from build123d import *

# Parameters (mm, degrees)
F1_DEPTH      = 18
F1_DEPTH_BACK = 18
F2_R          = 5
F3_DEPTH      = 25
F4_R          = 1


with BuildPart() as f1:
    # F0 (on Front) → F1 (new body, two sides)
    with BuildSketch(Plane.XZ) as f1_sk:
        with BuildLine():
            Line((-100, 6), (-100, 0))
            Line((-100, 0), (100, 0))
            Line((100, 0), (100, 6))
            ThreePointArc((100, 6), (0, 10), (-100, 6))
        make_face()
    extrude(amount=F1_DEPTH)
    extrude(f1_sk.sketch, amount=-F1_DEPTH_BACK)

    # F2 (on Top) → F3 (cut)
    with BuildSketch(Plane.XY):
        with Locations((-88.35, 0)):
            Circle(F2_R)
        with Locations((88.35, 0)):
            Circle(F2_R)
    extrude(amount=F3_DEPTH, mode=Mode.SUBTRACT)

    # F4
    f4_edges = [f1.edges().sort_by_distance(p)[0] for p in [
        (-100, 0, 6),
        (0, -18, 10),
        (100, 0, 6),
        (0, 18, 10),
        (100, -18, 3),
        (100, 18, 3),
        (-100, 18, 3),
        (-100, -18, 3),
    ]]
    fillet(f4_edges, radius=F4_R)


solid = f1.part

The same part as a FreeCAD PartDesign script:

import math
import FreeCAD as App
import Part
import Sketcher
from FreeCAD import Vector


def edges_at(feature, points):
    """Names of the edges that pass closest to the given points."""
    edges = feature.Shape.Edges
    near = lambda p: min(range(len(edges)), key=lambda i: edges[i].distToShape(Part.Vertex(*p))[0])
    return sorted({f"Edge{near(p) + 1}" for p in points})

doc = App.newDocument("Part")
body = doc.addObject("PartDesign::Body", "Body")

# Sketch on XZ plane
sketch1 = body.newObject("Sketcher::SketchObject", "Sketch")
sketch1.AttachmentSupport = (doc.getObject("XZ_Plane"), [""])
sketch1.MapMode = "FlatFace"
sketch1.addGeometry([
    Part.LineSegment(Vector(-100, 6, 0), Vector(-100, 0, 0)),
    Part.LineSegment(Vector(-100, 0, 0), Vector(100, 0, 0)),
    Part.LineSegment(Vector(100, 0, 0), Vector(100, 6, 0)),
    Part.ArcOfCircle(Part.Circle(Vector(0, -1242, 0), Vector(0, 0, 1), 1252), math.radians(85.42), math.radians(94.58)),
], False)
sketch1.addConstraint([
    Sketcher.Constraint("Coincident", 0, 2, 1, 1),
    Sketcher.Constraint("Coincident", 1, 2, 2, 1),
    Sketcher.Constraint("Coincident", 2, 2, 3, 1),
    Sketcher.Constraint("Coincident", 3, 2, 0, 1),
    Sketcher.Constraint("Vertical", 0),
    Sketcher.Constraint("Horizontal", 1),
    Sketcher.Constraint("Vertical", 2),
    Sketcher.Constraint("Symmetric", 0, 2, 1, 2, -1, 1),
    Sketcher.Constraint("PointOnObject", 3, 3, -2),
    Sketcher.Constraint("Radius", 3, 1252.0),
    Sketcher.Constraint("DistanceX", 1, 1, 1, 2, 200.0),
    Sketcher.Constraint("DistanceY", 0, 2, 0, 1, 6.0),
])
pad1 = body.newObject("PartDesign::Pad", "Pad")
pad1.Profile = sketch1
pad1.Type = "TwoLengths"
pad1.Length = 18
pad1.Length2 = 18

# Sketch on XY plane
sketch2 = body.newObject("Sketcher::SketchObject", "Sketch001")
sketch2.AttachmentSupport = (doc.getObject("XY_Plane"), [""])
sketch2.MapMode = "FlatFace"
sketch2.addGeometry([
    Part.Circle(Vector(-88, 0, 0), Vector(0, 0, 1), 5),
    Part.Circle(Vector(88, 0, 0), Vector(0, 0, 1), 5),
], False)
sketch2.addConstraint([
    Sketcher.Constraint("Equal", 0, 1),
    Sketcher.Constraint("Symmetric", 0, 3, 1, 3, -1, 1),
    Sketcher.Constraint("PointOnObject", 0, 3, -1),
    Sketcher.Constraint("Diameter", 0, 10.0),
    Sketcher.Constraint("DistanceX", 0, 3, 1, 3, 176.7),
])
pocket1 = body.newObject("PartDesign::Pocket", "Pocket")
pocket1.Profile = sketch2
pocket1.Length = 25
pocket1.Reversed = True
doc.recompute()

fillet = body.newObject("PartDesign::Fillet", "Fillet")
fillet.Base = (pocket1, edges_at(pocket1, [
    (-100, 0, 6),
    (0, -18, 10),
    (100, 0, 6),
    (0, 18, 10),
    (100, -18, 3),
    (100, 18, 3),
    (-100, 18, 3),
    (-100, -18, 3),
]))
fillet.Radius = 1

doc.recompute()
